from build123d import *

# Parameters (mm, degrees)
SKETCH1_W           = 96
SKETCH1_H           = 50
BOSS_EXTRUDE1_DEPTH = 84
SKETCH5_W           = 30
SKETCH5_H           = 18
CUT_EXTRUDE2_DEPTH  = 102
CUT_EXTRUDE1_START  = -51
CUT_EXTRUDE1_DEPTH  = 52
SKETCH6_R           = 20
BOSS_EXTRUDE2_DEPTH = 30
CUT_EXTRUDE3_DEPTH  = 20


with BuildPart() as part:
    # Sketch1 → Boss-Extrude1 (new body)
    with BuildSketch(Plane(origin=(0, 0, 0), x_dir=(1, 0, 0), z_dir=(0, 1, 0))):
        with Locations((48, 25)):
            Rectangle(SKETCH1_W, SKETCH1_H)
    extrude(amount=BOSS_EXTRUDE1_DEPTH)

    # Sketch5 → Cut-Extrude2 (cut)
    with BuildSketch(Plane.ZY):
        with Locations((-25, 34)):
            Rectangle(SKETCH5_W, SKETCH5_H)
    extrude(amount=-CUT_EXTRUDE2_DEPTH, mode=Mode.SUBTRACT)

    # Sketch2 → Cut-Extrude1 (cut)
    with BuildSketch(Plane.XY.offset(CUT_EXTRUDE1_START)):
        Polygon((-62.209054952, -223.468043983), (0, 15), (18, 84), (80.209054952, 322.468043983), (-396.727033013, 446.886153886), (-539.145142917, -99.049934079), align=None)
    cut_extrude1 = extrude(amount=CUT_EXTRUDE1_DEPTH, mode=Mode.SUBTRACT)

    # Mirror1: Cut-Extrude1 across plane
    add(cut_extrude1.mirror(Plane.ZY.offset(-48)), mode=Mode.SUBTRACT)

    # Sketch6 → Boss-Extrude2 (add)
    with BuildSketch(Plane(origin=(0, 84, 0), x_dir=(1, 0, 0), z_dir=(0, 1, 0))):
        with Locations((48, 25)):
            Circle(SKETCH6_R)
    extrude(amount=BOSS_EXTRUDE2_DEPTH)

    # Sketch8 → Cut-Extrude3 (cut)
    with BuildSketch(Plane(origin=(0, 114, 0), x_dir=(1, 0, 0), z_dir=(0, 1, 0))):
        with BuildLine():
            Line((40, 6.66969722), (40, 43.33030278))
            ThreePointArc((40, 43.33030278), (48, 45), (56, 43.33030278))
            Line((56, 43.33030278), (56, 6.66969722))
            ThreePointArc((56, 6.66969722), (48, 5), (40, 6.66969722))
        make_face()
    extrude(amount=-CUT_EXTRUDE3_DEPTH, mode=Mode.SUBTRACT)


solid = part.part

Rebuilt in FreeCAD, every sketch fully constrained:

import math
import FreeCAD as App
import Part
import Sketcher

V = App.Vector

doc = App.newDocument("Part")
body = doc.addObject("PartDesign::Body", "Body")

# Sketch on XZ plane
sketch1 = body.newObject("Sketcher::SketchObject", "Sketch")
sketch1.AttachmentSupport = (doc.getObject("XZ_Plane"), [""])
sketch1.MapMode = "FlatFace"
sketch1.addGeometry(Part.LineSegment(V(0, -50, 0), V(0, 0, 0)), False)
sketch1.addGeometry(Part.LineSegment(V(0, 0, 0), V(96, 0, 0)), False)
sketch1.addGeometry(Part.LineSegment(V(96, 0, 0), V(96, -50, 0)), False)
sketch1.addGeometry(Part.LineSegment(V(96, -50, 0), V(0, -50, 0)), False)
sketch1.addConstraint(Sketcher.Constraint("Coincident", 0, 2, 1, 1))
sketch1.addConstraint(Sketcher.Constraint("Coincident", 1, 2, 2, 1))
sketch1.addConstraint(Sketcher.Constraint("Coincident", 2, 2, 3, 1))
sketch1.addConstraint(Sketcher.Constraint("Coincident", 3, 2, 0, 1))
sketch1.addConstraint(Sketcher.Constraint("Vertical", 0))
sketch1.addConstraint(Sketcher.Constraint("Horizontal", 1))
sketch1.addConstraint(Sketcher.Constraint("Vertical", 2))
sketch1.addConstraint(Sketcher.Constraint("Horizontal", 3))
sketch1.addConstraint(Sketcher.Constraint("Coincident", 0, 2, -1, 1))
sketch1.addConstraint(Sketcher.Constraint("DistanceX", 1, 1, 1, 2, 96.0))
sketch1.addConstraint(Sketcher.Constraint("DistanceY", 0, 1, 0, 2, 50.0))
pad1 = body.newObject("PartDesign::Pad", "Pad")
pad1.Profile = sketch1
pad1.Length = 84
pad1.Reversed = True

# Sketch on YZ plane
sketch2 = body.newObject("Sketcher::SketchObject", "Sketch001")
sketch2.AttachmentSupport = (doc.getObject("YZ_Plane"), [""])
sketch2.MapMode = "FlatFace"
sketch2.addGeometry(Part.LineSegment(V(43, -40, 0), V(25, -40, 0)), False)
sketch2.addGeometry(Part.LineSegment(V(25, -40, 0), V(25, -10, 0)), False)
sketch2.addGeometry(Part.LineSegment(V(25, -10, 0), V(43, -10, 0)), False)
sketch2.addGeometry(Part.LineSegment(V(43, -10, 0), V(43, -40, 0)), False)
sketch2.addConstraint(Sketcher.Constraint("Coincident", 0, 2, 1, 1))
sketch2.addConstraint(Sketcher.Constraint("Coincident", 1, 2, 2, 1))
sketch2.addConstraint(Sketcher.Constraint("Coincident", 2, 2, 3, 1))
sketch2.addConstraint(Sketcher.Constraint("Coincident", 3, 2, 0, 1))
sketch2.addConstraint(Sketcher.Constraint("Horizontal", 0))
sketch2.addConstraint(Sketcher.Constraint("Vertical", 1))
sketch2.addConstraint(Sketcher.Constraint("Horizontal", 2))
sketch2.addConstraint(Sketcher.Constraint("Vertical", 3))
sketch2.addConstraint(Sketcher.Constraint("DistanceX", 0, 2, 0, 1, 18.0))
sketch2.addConstraint(Sketcher.Constraint("DistanceY", 1, 1, 1, 2, 30.0))
sketch2.addConstraint(Sketcher.Constraint("DistanceX", -1, 1, 0, 2, 25.0))
sketch2.addConstraint(Sketcher.Constraint("DistanceY", 0, 2, -1, 1, 40.0))
pocket1 = body.newObject("PartDesign::Pocket", "Pocket")
pocket1.Profile = sketch2
pocket1.Length = 102
pocket1.Reversed = True

# Sketch on XY plane
sketch3 = body.newObject("Sketcher::SketchObject", "Sketch002")
sketch3.AttachmentSupport = (doc.getObject("XY_Plane"), [""])
sketch3.MapMode = "FlatFace"
sketch3.AttachmentOffset = App.Placement(V(0, 0, -51), App.Rotation())
sketch3.addGeometry(Part.LineSegment(V(-62.209055, -223.468044, 0), V(80.209055, 322.468044, 0)), False)
sketch3.addGeometry(Part.LineSegment(V(80.209055, 322.468044, 0), V(-396.727033, 446.886154, 0)), False)
sketch3.addGeometry(Part.LineSegment(V(-396.727033, 446.886154, 0), V(-539.145143, -99.049934, 0)), False)
sketch3.addGeometry(Part.LineSegment(V(-539.145143, -99.049934, 0), V(-62.209055, -223.468044, 0)), False)
sketch3.addConstraint(Sketcher.Constraint("Coincident", 0, 2, 1, 1))
sketch3.addConstraint(Sketcher.Constraint("Coincident", 1, 2, 2, 1))
sketch3.addConstraint(Sketcher.Constraint("Coincident", 2, 2, 3, 1))
sketch3.addConstraint(Sketcher.Constraint("Coincident", 3, 2, 0, 1))
sketch3.addConstraint(Sketcher.Constraint("Perpendicular", 0, 1))
sketch3.addConstraint(Sketcher.Constraint("Perpendicular", 1, 2))
sketch3.addConstraint(Sketcher.Constraint("Perpendicular", 2, 3))
sketch3.addConstraint(Sketcher.Constraint("Distance", 1, 492.897452))
sketch3.addConstraint(Sketcher.Constraint("DistanceY", 0, 2, 1, 2, 124.41811))
sketch3.addConstraint(Sketcher.Constraint("DistanceX", 2, 2, 1, 2, 142.41811))
sketch3.addConstraint(Sketcher.Constraint("DistanceX", -1, 1, 0, 2, 80.209055))
sketch3.addConstraint(Sketcher.Constraint("DistanceY", -1, 1, 0, 2, 322.468044))
pocket2 = body.newObject("PartDesign::Pocket", "Pocket001")
pocket2.Profile = sketch3
pocket2.Length = 52
pocket2.Reversed = True
doc.recompute()

datumplane = body.newObject("PartDesign::Plane", "DatumPlane")
datumplane.AttachmentSupport = (doc.getObject("YZ_Plane"), [""])
datumplane.MapMode = "FlatFace"
datumplane.AttachmentOffset = App.Placement(V(0, 0, 48), App.Rotation())
mirrored = body.newObject("PartDesign::Mirrored", "Mirrored")
mirrored.Originals = [pocket2]
mirrored.MirrorPlane = (datumplane, [""])
body.Tip = mirrored

# Sketch on XZ plane
sketch4 = body.newObject("Sketcher::SketchObject", "Sketch003")
sketch4.AttachmentSupport = (doc.getObject("XZ_Plane"), [""])
sketch4.MapMode = "FlatFace"
sketch4.AttachmentOffset = App.Placement(V(0, 0, -84), App.Rotation())
sketch4.addGeometry(Part.Circle(V(48, -25, 0), V(0, 0, 1), 20), False)
sketch4.addConstraint(Sketcher.Constraint("Diameter", 0, 40.0))
sketch4.addConstraint(Sketcher.Constraint("DistanceX", -1, 1, 0, 3, 48.0))
sketch4.addConstraint(Sketcher.Constraint("DistanceY", 0, 3, -1, 1, 25.0))
pad2 = body.newObject("PartDesign::Pad", "Pad001")
pad2.Profile = sketch4
pad2.Length = 30
pad2.Reversed = True

# Sketch on XZ plane
sketch5 = body.newObject("Sketcher::SketchObject", "Sketch004")
sketch5.AttachmentSupport = (doc.getObject("XZ_Plane"), [""])
sketch5.MapMode = "FlatFace"
sketch5.AttachmentOffset = App.Placement(V(0, 0, -114), App.Rotation())
sketch5.addGeometry(Part.LineSegment(V(40, -43.330303, 0), V(40, -6.669697, 0)), False)
sketch5.addGeometry(Part.ArcOfCircle(Part.Circle(V(48, -25, 0), V(0, 0, 1), 20), math.radians(66.421822), math.radians(113.578178)), False)
sketch5.addGeometry(Part.LineSegment(V(56, -6.669697, 0), V(56, -43.330303, 0)), False)
sketch5.addGeometry(Part.ArcOfCircle(Part.Circle(V(48, -25, 0), V(0, 0, 1), 20), math.radians(-113.578178), math.radians(-66.421822)), False)
sketch5.addConstraint(Sketcher.Constraint("Coincident", 0, 2, 1, 2))
sketch5.addConstraint(Sketcher.Constraint("Coincident", 1, 1, 2, 1))
sketch5.addConstraint(Sketcher.Constraint("Coincident", 2, 2, 3, 2))
sketch5.addConstraint(Sketcher.Constraint("Coincident", 3, 1, 0, 1))
sketch5.addConstraint(Sketcher.Constraint("Vertical", 0))
sketch5.addConstraint(Sketcher.Constraint("Vertical", 2))
sketch5.addConstraint(Sketcher.Constraint("Coincident", 3, 3, 1, 3))
sketch5.addConstraint(Sketcher.Constraint("Equal", 1, 3))
sketch5.addConstraint(Sketcher.Constraint("Horizontal", 0, 2, 1, 1))
sketch5.addConstraint(Sketcher.Constraint("Radius", 1, 20.0))
sketch5.addConstraint(Sketcher.Constraint("DistanceX", -1, 1, 1, 3, 48.0))
sketch5.addConstraint(Sketcher.Constraint("DistanceY", 1, 3, -1, 1, 25.0))
sketch5.addConstraint(Sketcher.Constraint("DistanceX", -1, 1, 0, 2, 40.0))
pocket3 = body.newObject("PartDesign::Pocket", "Pocket002")
pocket3.Profile = sketch5
pocket3.Length = 20
pocket3.Reversed = True

doc.recompute()
